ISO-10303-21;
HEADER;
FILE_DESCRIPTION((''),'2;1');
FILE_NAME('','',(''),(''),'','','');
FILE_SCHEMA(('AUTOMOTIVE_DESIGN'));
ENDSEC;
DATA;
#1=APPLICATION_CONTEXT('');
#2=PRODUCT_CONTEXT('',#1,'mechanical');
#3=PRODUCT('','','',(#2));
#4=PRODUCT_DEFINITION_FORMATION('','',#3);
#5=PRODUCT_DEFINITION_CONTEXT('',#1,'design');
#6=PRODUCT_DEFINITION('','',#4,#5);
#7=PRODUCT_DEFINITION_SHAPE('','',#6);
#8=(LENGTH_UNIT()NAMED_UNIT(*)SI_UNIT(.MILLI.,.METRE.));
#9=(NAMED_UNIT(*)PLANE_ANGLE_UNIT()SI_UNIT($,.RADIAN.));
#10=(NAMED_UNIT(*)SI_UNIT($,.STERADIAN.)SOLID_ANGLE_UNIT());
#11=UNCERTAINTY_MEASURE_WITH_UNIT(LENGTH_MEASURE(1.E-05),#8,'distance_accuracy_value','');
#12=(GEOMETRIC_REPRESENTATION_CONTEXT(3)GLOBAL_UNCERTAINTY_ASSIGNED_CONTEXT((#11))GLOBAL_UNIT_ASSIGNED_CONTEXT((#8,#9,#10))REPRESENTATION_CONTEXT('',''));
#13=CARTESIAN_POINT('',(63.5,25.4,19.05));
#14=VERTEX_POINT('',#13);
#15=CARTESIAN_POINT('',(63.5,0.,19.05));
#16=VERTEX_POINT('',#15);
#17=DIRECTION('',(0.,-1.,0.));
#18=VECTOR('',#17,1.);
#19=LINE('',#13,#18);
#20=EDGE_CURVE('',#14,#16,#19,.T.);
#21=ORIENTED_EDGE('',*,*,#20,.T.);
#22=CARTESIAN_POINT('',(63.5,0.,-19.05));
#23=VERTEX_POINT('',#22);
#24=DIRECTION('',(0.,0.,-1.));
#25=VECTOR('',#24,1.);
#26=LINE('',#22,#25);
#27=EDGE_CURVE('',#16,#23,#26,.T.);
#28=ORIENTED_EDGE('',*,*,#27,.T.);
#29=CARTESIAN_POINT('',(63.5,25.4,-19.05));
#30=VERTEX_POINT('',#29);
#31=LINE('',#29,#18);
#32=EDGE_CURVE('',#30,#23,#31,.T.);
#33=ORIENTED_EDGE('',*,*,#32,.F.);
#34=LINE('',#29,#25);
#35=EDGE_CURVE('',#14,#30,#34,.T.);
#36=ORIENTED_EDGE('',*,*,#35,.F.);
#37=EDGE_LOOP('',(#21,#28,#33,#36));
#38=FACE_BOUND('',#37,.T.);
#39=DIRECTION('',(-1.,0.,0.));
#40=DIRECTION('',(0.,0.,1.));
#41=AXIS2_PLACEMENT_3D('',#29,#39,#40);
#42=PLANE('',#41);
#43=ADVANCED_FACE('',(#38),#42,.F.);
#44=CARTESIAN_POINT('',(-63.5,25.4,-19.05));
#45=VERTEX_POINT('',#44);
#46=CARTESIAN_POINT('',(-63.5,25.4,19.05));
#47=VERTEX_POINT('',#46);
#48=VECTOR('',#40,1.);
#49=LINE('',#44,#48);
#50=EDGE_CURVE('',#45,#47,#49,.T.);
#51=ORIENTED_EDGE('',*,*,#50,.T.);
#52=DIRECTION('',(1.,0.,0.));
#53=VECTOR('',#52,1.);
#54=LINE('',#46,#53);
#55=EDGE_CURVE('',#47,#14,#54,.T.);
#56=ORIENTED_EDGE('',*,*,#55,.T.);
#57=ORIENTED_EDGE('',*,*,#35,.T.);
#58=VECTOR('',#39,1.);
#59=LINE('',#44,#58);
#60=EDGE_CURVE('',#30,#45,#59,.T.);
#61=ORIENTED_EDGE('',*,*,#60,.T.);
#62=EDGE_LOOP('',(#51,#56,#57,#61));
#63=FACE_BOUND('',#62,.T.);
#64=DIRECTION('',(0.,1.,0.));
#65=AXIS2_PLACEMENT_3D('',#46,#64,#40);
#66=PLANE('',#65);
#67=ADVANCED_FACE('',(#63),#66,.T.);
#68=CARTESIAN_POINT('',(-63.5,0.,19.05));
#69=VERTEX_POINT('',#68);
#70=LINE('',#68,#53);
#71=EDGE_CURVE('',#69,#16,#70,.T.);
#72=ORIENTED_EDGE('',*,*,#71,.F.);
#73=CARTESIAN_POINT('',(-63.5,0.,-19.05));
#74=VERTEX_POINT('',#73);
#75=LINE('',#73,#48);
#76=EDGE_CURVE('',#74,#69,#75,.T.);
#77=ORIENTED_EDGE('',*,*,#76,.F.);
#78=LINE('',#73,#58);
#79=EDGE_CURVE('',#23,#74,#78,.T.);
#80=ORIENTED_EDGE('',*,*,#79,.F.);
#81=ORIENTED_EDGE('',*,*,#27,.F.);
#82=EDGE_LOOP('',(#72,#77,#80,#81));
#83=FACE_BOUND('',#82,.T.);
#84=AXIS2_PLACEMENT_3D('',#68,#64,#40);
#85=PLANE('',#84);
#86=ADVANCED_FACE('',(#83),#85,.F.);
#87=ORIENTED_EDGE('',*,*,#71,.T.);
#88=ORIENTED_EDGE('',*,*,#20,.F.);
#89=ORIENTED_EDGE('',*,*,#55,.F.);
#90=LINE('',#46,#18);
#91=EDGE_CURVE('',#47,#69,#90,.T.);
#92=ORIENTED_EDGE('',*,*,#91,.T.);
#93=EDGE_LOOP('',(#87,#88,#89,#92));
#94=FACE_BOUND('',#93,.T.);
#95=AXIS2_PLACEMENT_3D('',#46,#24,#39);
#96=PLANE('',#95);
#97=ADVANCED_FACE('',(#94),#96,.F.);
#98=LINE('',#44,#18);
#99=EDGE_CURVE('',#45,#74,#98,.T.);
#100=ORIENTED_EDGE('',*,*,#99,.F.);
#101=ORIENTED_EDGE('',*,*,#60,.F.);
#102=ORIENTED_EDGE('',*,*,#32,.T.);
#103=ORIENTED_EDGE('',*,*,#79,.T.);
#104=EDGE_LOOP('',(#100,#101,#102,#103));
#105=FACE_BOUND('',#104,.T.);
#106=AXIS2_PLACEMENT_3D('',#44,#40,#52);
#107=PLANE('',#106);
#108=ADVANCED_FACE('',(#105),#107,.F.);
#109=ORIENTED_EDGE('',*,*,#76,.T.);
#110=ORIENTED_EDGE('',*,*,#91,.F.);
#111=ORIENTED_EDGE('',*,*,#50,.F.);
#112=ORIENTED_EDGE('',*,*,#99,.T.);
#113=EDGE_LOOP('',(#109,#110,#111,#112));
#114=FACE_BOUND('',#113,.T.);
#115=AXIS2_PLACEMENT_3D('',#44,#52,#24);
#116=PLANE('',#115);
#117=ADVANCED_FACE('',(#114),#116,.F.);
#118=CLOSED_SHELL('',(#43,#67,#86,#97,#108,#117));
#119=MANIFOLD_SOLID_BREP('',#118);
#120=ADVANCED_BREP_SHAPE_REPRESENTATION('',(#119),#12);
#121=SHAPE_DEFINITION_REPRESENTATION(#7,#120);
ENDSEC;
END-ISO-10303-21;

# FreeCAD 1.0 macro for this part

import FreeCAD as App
import Part
import Sketcher
Q = App.Units.Quantity


def add_polygon(sketch, points):
    """Adds a closed chain of lines whose ends are joined by coincident constraints."""
    first, n = sketch.GeometryCount, len(points)
    for a, b in zip(points, points[1:] + points[:1]):
        sketch.addGeometry(Part.LineSegment(App.Vector(*a, 0), App.Vector(*b, 0)), False)
    for i in range(n):
        sketch.addConstraint(Sketcher.Constraint("Coincident", first + i, 2, first + (i + 1) % n, 1))

doc = App.newDocument("Part")
body = doc.addObject("PartDesign::Body", "Body")

sketch1 = body.newObject("Sketcher::SketchObject", "Sketch")
sketch1.AttachmentSupport = (doc.getObject("XZ_Plane"), [""])
sketch1.MapMode = "FlatFace"
add_polygon(sketch1, [(-64, -19), (-64, 19), (64, 19), (64, -19)])
sketch1.addConstraint(Sketcher.Constraint("Vertical", 0))
sketch1.addConstraint(Sketcher.Constraint("Horizontal", 1))
sketch1.addConstraint(Sketcher.Constraint("Vertical", 2))
sketch1.addConstraint(Sketcher.Constraint("Horizontal", 3))
sketch1.addConstraint(Sketcher.Constraint("Symmetric", 0, 2, 2, 2, -1, 1))
sketch1.addConstraint(Sketcher.Constraint("DistanceX", 1, 1, 1, 2, Q("5 in")))
sketch1.addConstraint(Sketcher.Constraint("DistanceY", 0, 1, 0, 2, Q("1.5 in")))
pad1 = body.newObject("PartDesign::Pad", "Pad")
pad1.Profile = sketch1
pad1.Length = Q("1 in")
pad1.Reversed = True

doc.recompute()
